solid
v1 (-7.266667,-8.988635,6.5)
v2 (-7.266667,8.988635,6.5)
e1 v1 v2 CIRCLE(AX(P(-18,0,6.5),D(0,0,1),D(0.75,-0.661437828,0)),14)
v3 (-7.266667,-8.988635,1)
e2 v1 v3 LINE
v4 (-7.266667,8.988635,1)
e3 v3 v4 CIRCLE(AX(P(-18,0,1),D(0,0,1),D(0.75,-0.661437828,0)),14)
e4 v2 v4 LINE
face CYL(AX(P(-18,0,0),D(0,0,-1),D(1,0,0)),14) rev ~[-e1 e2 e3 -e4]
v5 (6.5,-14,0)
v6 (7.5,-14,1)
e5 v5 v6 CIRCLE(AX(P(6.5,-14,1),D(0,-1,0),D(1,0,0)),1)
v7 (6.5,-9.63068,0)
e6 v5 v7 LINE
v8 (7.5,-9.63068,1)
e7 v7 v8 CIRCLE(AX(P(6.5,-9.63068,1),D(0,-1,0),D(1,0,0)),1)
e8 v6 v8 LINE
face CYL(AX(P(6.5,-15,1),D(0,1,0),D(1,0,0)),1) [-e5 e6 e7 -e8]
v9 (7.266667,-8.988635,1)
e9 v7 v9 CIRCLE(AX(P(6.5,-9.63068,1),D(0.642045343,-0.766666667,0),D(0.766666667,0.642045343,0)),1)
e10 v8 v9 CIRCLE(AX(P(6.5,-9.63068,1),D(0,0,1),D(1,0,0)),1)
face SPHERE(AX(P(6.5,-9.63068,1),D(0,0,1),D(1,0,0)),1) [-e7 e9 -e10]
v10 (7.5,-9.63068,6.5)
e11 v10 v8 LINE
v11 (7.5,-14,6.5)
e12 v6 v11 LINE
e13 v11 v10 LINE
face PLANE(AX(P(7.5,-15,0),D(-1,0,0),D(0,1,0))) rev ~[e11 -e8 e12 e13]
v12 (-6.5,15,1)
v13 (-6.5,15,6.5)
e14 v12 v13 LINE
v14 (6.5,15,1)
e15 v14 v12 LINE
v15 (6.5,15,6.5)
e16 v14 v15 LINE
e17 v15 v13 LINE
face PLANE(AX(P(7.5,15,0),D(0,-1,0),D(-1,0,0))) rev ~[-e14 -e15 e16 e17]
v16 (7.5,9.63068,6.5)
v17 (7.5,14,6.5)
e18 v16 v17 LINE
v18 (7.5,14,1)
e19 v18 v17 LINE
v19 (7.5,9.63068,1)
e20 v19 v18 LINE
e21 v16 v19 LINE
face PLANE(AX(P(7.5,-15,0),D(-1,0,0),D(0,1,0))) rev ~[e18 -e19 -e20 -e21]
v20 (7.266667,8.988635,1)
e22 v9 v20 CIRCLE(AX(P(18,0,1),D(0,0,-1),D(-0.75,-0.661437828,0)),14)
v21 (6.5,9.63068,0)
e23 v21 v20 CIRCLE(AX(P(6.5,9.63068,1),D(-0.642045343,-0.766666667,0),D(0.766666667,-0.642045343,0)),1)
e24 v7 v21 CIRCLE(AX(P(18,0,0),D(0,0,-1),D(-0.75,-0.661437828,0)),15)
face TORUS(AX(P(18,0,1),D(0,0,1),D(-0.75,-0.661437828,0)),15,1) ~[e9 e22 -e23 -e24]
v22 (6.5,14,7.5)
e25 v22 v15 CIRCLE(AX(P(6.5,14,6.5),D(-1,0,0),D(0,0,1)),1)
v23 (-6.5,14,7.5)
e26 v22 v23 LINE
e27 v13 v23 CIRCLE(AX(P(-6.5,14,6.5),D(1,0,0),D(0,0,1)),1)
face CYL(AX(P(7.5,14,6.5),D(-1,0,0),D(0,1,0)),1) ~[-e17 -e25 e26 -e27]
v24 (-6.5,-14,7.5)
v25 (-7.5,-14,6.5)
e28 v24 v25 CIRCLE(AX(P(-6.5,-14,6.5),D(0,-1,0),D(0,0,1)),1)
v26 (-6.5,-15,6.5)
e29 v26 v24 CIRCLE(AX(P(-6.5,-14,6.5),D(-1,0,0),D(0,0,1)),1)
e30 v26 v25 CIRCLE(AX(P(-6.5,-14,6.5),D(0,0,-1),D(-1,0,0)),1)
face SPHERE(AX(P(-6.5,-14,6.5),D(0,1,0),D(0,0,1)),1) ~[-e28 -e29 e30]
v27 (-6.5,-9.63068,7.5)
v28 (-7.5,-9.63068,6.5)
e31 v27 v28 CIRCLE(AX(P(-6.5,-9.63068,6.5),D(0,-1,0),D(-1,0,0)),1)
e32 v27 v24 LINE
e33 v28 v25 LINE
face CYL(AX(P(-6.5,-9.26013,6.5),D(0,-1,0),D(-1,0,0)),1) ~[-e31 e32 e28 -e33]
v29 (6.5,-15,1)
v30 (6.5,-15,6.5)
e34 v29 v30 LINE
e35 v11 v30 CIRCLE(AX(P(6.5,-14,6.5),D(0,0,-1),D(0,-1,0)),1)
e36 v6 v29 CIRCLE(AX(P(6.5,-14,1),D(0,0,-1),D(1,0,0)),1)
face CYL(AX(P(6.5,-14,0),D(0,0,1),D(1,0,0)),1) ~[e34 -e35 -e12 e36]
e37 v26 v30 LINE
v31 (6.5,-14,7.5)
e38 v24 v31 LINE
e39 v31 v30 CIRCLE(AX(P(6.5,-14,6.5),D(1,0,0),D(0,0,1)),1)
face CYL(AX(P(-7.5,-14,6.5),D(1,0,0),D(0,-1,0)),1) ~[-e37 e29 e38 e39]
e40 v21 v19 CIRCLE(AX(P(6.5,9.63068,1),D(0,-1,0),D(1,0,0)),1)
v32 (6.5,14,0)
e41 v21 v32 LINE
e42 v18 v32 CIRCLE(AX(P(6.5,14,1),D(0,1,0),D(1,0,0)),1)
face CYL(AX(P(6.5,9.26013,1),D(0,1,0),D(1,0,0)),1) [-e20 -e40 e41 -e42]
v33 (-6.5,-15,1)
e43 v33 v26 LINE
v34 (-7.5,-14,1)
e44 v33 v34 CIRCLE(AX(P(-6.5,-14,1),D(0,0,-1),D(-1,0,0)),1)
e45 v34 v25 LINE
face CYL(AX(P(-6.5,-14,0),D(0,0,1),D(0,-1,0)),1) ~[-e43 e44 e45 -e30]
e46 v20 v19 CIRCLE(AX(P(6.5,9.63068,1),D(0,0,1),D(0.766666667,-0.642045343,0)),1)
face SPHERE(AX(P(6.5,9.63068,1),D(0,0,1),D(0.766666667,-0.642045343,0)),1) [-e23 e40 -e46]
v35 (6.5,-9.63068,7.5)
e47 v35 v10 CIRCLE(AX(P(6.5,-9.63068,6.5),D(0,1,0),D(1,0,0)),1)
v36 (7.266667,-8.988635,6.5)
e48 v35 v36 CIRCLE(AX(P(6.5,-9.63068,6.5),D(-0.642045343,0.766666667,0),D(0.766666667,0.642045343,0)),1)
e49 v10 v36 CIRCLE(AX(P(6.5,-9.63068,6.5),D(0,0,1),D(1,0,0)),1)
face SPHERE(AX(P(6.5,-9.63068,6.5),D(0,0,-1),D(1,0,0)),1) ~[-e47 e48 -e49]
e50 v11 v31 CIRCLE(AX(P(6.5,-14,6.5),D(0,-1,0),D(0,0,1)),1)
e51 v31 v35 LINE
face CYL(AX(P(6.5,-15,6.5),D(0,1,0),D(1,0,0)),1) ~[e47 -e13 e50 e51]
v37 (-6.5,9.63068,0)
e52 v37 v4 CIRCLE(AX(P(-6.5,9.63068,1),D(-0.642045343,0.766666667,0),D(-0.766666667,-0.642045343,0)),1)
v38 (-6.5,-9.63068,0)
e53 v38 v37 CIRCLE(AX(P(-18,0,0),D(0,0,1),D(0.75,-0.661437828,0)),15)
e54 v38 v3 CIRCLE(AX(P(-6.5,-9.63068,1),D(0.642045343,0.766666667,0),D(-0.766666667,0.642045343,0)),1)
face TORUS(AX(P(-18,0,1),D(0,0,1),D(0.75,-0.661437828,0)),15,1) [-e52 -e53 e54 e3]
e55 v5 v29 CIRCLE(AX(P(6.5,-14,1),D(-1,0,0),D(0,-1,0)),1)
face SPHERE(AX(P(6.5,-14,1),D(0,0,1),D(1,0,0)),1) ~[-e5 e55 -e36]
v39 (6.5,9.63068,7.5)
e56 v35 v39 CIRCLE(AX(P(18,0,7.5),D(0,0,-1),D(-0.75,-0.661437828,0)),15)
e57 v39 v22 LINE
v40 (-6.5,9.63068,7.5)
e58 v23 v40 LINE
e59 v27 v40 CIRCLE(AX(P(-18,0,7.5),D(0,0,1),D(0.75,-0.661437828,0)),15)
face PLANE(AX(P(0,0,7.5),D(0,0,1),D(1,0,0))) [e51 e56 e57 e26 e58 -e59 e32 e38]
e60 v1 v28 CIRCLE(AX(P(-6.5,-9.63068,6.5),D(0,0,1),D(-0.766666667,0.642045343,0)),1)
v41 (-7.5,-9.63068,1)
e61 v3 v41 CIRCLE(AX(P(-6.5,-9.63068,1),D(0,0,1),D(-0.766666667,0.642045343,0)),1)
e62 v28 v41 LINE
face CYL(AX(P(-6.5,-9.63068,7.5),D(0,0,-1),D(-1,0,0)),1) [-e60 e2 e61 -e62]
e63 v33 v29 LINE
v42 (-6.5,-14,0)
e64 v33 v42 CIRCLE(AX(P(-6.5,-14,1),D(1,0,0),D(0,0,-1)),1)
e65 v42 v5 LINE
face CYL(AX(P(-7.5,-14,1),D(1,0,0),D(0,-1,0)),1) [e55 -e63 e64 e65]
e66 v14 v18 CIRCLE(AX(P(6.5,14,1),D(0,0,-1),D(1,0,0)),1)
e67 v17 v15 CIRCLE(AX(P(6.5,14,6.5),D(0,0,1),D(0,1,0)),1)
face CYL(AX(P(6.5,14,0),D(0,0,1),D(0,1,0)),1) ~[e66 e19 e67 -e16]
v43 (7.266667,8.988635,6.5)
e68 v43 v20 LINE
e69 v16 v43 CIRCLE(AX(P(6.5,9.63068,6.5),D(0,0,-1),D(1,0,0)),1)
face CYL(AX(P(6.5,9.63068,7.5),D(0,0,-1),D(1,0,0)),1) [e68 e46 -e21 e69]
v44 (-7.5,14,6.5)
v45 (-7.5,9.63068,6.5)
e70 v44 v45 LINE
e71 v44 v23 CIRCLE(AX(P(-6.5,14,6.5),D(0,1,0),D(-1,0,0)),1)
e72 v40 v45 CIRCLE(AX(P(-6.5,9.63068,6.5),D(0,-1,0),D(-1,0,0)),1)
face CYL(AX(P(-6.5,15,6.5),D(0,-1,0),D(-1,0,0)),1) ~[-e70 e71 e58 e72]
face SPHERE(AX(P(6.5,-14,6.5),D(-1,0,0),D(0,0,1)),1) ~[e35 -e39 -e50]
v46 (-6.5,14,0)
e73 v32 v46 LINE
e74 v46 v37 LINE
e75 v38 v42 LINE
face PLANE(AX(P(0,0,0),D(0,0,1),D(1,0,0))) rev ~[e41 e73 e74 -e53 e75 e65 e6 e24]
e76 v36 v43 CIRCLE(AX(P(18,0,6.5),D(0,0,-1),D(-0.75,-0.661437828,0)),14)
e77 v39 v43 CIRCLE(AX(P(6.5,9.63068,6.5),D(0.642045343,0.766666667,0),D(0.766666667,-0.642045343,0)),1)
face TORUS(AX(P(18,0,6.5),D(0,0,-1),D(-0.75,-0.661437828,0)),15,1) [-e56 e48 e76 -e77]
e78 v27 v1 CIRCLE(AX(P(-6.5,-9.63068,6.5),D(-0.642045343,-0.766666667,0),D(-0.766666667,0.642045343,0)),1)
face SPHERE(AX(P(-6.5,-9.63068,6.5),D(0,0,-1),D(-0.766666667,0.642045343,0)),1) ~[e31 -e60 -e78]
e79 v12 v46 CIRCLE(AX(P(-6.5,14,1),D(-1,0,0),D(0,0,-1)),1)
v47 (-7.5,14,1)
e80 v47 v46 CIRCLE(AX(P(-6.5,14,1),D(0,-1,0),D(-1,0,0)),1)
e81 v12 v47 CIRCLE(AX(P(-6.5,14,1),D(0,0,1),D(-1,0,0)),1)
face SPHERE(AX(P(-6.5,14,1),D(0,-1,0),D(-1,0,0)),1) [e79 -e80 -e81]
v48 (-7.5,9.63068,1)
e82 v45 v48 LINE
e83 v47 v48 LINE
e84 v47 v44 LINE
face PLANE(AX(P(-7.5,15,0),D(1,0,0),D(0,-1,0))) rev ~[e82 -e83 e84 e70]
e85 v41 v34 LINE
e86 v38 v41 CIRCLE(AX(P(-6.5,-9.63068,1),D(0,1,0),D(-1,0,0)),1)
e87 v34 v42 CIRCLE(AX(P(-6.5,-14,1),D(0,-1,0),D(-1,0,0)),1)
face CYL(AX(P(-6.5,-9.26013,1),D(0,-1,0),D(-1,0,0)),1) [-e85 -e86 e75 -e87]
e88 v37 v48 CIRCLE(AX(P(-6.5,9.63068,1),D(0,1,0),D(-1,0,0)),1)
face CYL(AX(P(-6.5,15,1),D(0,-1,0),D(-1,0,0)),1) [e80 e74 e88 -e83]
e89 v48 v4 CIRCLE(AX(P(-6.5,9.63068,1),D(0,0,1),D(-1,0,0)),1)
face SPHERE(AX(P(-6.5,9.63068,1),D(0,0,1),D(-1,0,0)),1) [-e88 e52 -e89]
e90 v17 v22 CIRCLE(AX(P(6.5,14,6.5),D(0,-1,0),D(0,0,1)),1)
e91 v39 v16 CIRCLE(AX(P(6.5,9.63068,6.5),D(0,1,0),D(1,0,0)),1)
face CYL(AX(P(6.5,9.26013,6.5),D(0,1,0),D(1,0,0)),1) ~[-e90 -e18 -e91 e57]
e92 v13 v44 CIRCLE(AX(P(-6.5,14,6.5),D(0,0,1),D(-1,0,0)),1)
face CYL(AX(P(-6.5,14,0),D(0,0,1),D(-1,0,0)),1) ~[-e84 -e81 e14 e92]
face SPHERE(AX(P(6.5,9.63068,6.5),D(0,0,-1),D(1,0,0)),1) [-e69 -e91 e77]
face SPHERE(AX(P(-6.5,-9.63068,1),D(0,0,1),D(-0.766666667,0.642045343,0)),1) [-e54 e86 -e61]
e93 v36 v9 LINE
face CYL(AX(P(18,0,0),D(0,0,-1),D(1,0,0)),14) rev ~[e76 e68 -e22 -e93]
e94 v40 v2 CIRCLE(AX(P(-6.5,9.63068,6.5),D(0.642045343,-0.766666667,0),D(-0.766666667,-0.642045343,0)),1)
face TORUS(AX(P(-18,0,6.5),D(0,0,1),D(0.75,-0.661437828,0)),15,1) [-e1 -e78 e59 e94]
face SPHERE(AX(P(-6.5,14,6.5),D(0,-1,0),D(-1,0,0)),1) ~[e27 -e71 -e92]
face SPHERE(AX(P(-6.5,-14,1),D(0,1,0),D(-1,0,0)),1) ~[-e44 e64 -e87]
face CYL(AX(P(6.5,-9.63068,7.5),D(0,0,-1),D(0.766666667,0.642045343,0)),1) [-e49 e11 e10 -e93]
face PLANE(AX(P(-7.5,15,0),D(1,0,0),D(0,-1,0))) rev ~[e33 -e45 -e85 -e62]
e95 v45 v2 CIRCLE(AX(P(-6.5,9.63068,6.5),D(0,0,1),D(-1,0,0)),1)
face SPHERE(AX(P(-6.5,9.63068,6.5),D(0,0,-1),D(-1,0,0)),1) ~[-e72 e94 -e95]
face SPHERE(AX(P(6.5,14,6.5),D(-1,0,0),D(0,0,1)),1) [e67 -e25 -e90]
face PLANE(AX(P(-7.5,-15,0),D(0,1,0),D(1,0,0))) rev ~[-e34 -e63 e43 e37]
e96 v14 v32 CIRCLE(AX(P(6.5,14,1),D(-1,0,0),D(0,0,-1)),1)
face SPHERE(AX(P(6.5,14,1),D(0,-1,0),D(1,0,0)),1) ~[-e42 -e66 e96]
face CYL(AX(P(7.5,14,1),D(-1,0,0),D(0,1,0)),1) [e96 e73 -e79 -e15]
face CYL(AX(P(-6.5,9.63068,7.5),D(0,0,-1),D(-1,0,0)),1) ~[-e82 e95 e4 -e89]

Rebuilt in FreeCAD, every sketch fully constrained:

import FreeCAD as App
import Part
import Sketcher
from FreeCAD import Vector
Q = App.Units.Quantity

doc = App.newDocument("Part")
body = doc.addObject("PartDesign::Body", "Body")

# Sketch on XY plane
sketch1 = body.newObject("Sketcher::SketchObject", "Sketch")
sketch1.AttachmentSupport = (doc.getObject("XY_Plane"), [""])
sketch1.MapMode = "FlatFace"
sketch1.addGeometry(Part.LineSegment(Vector(-7.5, 15, 0), Vector(-7.5, -15, 0)), False)
sketch1.addGeometry(Part.LineSegment(Vector(-7.5, -15, 0), Vector(7.5, -15, 0)), False)
sketch1.addGeometry(Part.LineSegment(Vector(7.5, -15, 0), Vector(7.5, 15, 0)), False)
sketch1.addGeometry(Part.LineSegment(Vector(7.5, 15, 0), Vector(-7.5, 15, 0)), False)
sketch1.addConstraint(Sketcher.Constraint("Coincident", 0, 2, 1, 1))
sketch1.addConstraint(Sketcher.Constraint("Coincident", 1, 2, 2, 1))
sketch1.addConstraint(Sketcher.Constraint("Coincident", 2, 2, 3, 1))
sketch1.addConstraint(Sketcher.Constraint("Coincident", 3, 2, 0, 1))
sketch1.addConstraint(Sketcher.Constraint("Vertical", 0))
sketch1.addConstraint(Sketcher.Constraint("Horizontal", 1))
sketch1.addConstraint(Sketcher.Constraint("Vertical", 2))
sketch1.addConstraint(Sketcher.Constraint("Horizontal", 3))
sketch1.addConstraint(Sketcher.Constraint("Symmetric", 0, 2, 2, 2, -1, 1))
sketch1.addConstraint(Sketcher.Constraint("DistanceX", 1, 1, 1, 2, Q("15 mm")))
sketch1.addConstraint(Sketcher.Constraint("DistanceY", 0, 2, 0, 1, Q("30 mm")))
pad1 = body.newObject("PartDesign::Pad", "Pad")
pad1.Profile = sketch1
pad1.Length = 7.5

# Sketch on XY plane
sketch2 = body.newObject("Sketcher::SketchObject", "Sketch001")
sketch2.AttachmentSupport = (doc.getObject("XY_Plane"), [""])
sketch2.MapMode = "FlatFace"
sketch2.addGeometry(Part.Circle(Vector(18, 0, 0), Vector(0, 0, 1), 14), False)
sketch2.addGeometry(Part.Circle(Vector(-18, 0, 0), Vector(0, 0, 1), 14), False)
sketch2.addConstraint(Sketcher.Constraint("Equal", 0, 1))
sketch2.addConstraint(Sketcher.Constraint("Symmetric", 0, 3, 1, 3, -1, 1))
sketch2.addConstraint(Sketcher.Constraint("PointOnObject", 0, 3, -1))
sketch2.addConstraint(Sketcher.Constraint("Diameter", 0, Q("28 mm")))
sketch2.addConstraint(Sketcher.Constraint("DistanceX", -1, 1, 0, 3, Q("18 mm")))
pocket1 = body.newObject("PartDesign::Pocket", "Pocket")
pocket1.Profile = sketch2
pocket1.Type = "ThroughAll"
pocket1.Reversed = True
doc.recompute()

fillet = body.newObject("PartDesign::Fillet", "Fillet")
fillet.Base = (pocket1, ["Edge1"])
fillet.UseAllEdges = True
fillet.Radius = 1

doc.recompute()
